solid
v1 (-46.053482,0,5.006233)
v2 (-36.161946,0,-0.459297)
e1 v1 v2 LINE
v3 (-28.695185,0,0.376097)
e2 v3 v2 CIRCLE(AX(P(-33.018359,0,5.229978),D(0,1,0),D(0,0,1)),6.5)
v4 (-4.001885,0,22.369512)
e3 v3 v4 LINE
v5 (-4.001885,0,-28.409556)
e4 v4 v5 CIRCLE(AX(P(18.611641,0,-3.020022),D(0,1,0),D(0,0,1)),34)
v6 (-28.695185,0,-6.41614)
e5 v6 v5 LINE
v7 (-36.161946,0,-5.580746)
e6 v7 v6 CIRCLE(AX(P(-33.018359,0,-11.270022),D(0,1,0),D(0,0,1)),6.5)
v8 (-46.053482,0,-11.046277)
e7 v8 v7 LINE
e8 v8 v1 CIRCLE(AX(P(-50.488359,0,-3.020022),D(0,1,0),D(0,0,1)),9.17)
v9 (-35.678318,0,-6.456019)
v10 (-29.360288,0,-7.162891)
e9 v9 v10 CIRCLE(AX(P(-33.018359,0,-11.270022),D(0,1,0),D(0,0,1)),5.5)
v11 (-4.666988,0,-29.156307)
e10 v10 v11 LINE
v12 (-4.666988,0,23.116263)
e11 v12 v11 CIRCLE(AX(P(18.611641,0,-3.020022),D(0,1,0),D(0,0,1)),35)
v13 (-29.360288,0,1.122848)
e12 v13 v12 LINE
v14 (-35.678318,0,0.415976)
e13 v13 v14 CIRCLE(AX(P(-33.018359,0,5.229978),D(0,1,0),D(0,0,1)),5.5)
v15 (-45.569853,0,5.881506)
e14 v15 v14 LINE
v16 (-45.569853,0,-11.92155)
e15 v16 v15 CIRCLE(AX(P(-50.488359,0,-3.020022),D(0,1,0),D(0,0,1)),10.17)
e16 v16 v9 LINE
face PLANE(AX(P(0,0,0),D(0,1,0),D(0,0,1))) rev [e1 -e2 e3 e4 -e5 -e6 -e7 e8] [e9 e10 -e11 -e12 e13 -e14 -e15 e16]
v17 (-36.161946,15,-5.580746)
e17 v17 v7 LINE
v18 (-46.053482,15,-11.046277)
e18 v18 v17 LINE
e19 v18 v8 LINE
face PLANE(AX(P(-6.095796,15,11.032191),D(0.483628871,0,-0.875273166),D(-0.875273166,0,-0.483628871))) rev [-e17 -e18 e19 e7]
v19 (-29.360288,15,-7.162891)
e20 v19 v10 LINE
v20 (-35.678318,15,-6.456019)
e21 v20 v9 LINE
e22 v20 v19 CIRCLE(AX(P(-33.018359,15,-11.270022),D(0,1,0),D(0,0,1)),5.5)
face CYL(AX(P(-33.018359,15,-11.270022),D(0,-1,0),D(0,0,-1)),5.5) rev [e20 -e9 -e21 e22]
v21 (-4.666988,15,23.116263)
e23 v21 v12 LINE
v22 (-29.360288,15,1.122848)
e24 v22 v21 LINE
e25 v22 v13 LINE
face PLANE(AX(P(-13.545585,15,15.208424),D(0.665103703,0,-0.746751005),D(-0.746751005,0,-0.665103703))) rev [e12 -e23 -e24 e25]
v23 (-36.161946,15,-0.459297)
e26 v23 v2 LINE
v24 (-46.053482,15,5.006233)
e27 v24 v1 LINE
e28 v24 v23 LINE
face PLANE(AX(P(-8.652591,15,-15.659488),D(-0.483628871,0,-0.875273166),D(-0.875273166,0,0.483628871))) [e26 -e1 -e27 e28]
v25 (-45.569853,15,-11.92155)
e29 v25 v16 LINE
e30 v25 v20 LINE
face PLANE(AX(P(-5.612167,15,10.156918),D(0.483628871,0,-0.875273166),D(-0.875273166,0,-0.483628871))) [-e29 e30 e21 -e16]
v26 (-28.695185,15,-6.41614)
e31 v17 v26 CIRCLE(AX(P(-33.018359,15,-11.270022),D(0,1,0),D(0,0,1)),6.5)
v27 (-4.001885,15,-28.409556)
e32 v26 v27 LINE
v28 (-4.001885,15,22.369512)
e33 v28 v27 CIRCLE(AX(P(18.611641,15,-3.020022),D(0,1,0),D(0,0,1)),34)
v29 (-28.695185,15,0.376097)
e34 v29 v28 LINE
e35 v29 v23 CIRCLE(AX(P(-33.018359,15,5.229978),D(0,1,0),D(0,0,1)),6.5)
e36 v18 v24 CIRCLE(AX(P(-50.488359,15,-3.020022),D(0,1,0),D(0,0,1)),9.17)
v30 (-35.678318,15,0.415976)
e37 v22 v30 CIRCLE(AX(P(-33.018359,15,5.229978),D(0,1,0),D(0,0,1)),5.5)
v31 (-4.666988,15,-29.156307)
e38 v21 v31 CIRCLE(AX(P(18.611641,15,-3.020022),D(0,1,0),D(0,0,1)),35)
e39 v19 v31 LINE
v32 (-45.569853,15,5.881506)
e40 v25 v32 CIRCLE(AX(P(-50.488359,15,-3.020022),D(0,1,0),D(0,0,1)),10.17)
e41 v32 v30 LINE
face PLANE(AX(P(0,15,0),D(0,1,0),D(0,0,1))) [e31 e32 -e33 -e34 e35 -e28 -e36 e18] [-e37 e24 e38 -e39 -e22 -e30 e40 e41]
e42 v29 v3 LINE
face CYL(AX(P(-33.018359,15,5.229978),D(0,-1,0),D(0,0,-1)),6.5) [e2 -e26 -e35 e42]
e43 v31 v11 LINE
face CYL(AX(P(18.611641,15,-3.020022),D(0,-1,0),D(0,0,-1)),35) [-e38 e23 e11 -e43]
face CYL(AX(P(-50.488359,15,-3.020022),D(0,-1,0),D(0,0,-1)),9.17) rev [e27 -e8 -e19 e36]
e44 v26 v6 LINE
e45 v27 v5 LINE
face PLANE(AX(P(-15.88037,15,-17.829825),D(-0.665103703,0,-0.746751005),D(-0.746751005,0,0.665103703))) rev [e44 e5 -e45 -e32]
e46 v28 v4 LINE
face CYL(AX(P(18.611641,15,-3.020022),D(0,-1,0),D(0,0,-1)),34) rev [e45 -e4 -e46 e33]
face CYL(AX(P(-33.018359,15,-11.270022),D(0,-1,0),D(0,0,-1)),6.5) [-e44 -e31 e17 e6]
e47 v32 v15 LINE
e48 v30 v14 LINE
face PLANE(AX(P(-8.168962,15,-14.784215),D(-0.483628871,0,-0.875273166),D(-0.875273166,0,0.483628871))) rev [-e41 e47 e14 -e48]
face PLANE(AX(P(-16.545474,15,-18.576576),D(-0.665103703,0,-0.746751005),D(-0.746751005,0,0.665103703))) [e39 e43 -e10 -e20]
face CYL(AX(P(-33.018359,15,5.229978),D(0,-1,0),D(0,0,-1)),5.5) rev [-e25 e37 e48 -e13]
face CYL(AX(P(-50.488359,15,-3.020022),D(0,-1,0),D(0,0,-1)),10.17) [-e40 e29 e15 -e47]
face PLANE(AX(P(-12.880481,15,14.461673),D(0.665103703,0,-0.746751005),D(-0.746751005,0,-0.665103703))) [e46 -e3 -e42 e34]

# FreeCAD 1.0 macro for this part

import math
import FreeCAD as App
import Part
import Sketcher
Q = App.Units.Quantity

doc = App.newDocument("Part")
body = doc.addObject("PartDesign::Body", "Body")

# Sketch on XZ plane
sketch1 = body.newObject("Sketcher::SketchObject", "Sketch")
sketch1.AttachmentSupport = (doc.getObject("XZ_Plane"), [""])
sketch1.MapMode = "FlatFace"
sketch1.addGeometry([
    Part.ArcOfCircle(Part.Circle(App.Vector(19, -3, 0), App.Vector(0, 0, 1), 35), math.radians(-132), math.radians(132)),  # 0
    Part.LineSegment(App.Vector(-5, -29, 0), App.Vector(-29, -7, 0)),  # 1
    Part.ArcOfCircle(Part.Circle(App.Vector(-33, -11, 0), App.Vector(0, 0, 1), 5), math.radians(48), math.radians(119)),  # 2
    Part.LineSegment(App.Vector(-36, -6, 0), App.Vector(-46, -12, 0)),  # 3
    Part.ArcOfCircle(Part.Circle(App.Vector(-50, -3, 0), App.Vector(0, 0, 1), 10), math.radians(61), math.radians(299)),  # 4
    Part.LineSegment(App.Vector(-46, 6, 0), App.Vector(-36, 0, 0)),  # 5
    Part.ArcOfCircle(Part.Circle(App.Vector(-33, 5, 0), App.Vector(0, 0, 1), 6), math.radians(-119), math.radians(-48)),  # 6
    Part.LineSegment(App.Vector(-29, 1, 0), App.Vector(-5, 23, 0)),  # 7
    Part.LineSegment(App.Vector(-36, 0, 0), App.Vector(-46, 5, 0)),  # 8
    Part.ArcOfCircle(Part.Circle(App.Vector(-50, -3, 0), App.Vector(0, 0, 1), 9), math.radians(61), math.radians(299)),  # 9
    Part.LineSegment(App.Vector(-46, -11, 0), App.Vector(-36, -6, 0)),  # 10
    Part.ArcOfCircle(Part.Circle(App.Vector(-33, -11, 0), App.Vector(0, 0, 1), 7), math.radians(48), math.radians(119)),  # 11
    Part.LineSegment(App.Vector(-29, -6, 0), App.Vector(-4, -28, 0)),  # 12
    Part.ArcOfCircle(Part.Circle(App.Vector(19, -3, 0), App.Vector(0, 0, 1), 34), math.radians(-132), math.radians(132)),  # 13
    Part.LineSegment(App.Vector(-4, 22, 0), App.Vector(-29, 0, 0)),  # 14
    Part.ArcOfCircle(Part.Circle(App.Vector(-33, 5, 0), App.Vector(0, 0, 1), 6), math.radians(-119), math.radians(-48)),  # 15
], False)
sketch1.addConstraint([
    Sketcher.Constraint("Tangent", 0, 1, 1, 1),
    Sketcher.Constraint("Tangent", 1, 2, 2, 1),
    Sketcher.Constraint("Tangent", 2, 2, 3, 1),
    Sketcher.Constraint("Tangent", 3, 2, 4, 2),
    Sketcher.Constraint("Tangent", 4, 1, 5, 1),
    Sketcher.Constraint("Tangent", 5, 2, 6, 1),
    Sketcher.Constraint("Tangent", 6, 2, 7, 1),
    Sketcher.Constraint("Tangent", 7, 2, 0, 2),
    Sketcher.Constraint("Tangent", 8, 2, 9, 1),
    Sketcher.Constraint("Tangent", 9, 2, 10, 1),
    Sketcher.Constraint("Tangent", 10, 2, 11, 2),
    Sketcher.Constraint("Tangent", 11, 1, 12, 1),
    Sketcher.Constraint("Tangent", 12, 2, 13, 1),
    Sketcher.Constraint("Tangent", 13, 2, 14, 1),
    Sketcher.Constraint("Tangent", 14, 2, 15, 2),
    Sketcher.Constraint("Tangent", 15, 1, 8, 1),
    Sketcher.Constraint("Coincident", 9, 3, 4, 3),
    Sketcher.Constraint("Coincident", 11, 3, 2, 3),
    Sketcher.Constraint("Coincident", 13, 3, 0, 3),
    Sketcher.Constraint("Coincident", 15, 3, 6, 3),
    Sketcher.Constraint("Equal", 2, 6),
    Sketcher.Constraint("Equal", 11, 15),
    Sketcher.Constraint("Parallel", 5, 8),
    Sketcher.Constraint("Parallel", 1, 12),
    Sketcher.Constraint("Horizontal", 0, 3, 4, 3),
    Sketcher.Constraint("Vertical", 2, 3, 6, 3),
    Sketcher.Constraint("Vertical", 3, 2, 4, 1),
    Sketcher.Constraint("Radius", 0, Q("35 mm")),
    Sketcher.Constraint("Radius", 13, Q("34 mm")),
    Sketcher.Constraint("Radius", 2, Q("5.5 mm")),
    Sketcher.Constraint("Radius", 4, Q("10.17 mm")),
    Sketcher.Constraint("DistanceX", 4, 3, 0, 3, Q("69.1 mm")),
    Sketcher.Constraint("DistanceY", 2, 3, 6, 3, Q("16.5 mm")),
    Sketcher.Constraint("DistanceX", 2, 3, 0, 3, Q("51.63 mm")),
    Sketcher.Constraint("DistanceX", -1, 1, 0, 3, Q("18.611641 mm")),
    Sketcher.Constraint("DistanceY", 0, 3, -1, 1, Q("3.020022 mm")),
])
pad1 = body.newObject("PartDesign::Pad", "Pad")
pad1.Profile = sketch1
pad1.Length = 15
pad1.Reversed = True

doc.recompute()
